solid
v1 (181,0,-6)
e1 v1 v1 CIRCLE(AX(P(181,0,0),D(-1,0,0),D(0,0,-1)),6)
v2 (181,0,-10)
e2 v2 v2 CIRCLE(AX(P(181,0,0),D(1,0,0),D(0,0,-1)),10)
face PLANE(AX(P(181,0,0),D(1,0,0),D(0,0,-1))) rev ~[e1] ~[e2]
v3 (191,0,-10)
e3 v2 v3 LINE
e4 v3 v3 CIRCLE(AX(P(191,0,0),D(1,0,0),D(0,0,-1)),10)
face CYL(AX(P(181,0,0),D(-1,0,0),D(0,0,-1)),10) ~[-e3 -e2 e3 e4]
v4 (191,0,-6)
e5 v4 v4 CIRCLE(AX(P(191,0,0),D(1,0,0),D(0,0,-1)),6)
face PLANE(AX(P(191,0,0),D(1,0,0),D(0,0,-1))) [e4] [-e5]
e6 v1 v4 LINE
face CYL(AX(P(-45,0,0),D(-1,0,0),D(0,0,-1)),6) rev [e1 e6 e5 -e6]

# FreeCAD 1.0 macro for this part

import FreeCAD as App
import Part
import Sketcher
Q = App.Units.Quantity

doc = App.newDocument("Part")
params = doc.addObject("Spreadsheet::Sheet", "Params")
for row, (alias, value) in enumerate([
    ("sketch1_diameter", "12 mm"),
    ("pad1_length", "236 mm"),
    ("sketch2_diameter", "20 mm"),
    ("pad2_length", "10 mm"),
], start=1):
    params.set(f"A{row}", alias)
    params.set(f"B{row}", "=" + value)
    params.setAlias(f"B{row}", alias)

body = doc.addObject("PartDesign::Body", "Body")

# Sketch on XY plane
sketch1 = body.newObject("Sketcher::SketchObject", "Sketch")
sketch1.AttachmentSupport = (doc.getObject("XY_Plane"), [""])
sketch1.MapMode = "FlatFace"
sketch1.addGeometry(Part.Circle(App.Vector(0, 0, 0), App.Vector(0, 0, 1), 6), False)
sketch1.addConstraint([
    Sketcher.Constraint("Coincident", 0, 3, -1, 1),
    Sketcher.Constraint("Diameter", 0, Q("12 mm")),
])
sketch1.setExpression("Constraints[1]", "Params.sketch1_diameter")
pad1 = body.newObject("PartDesign::Pad", "Pad")
pad1.Profile = sketch1
pad1.setExpression("Length", "Params.pad1_length")
body2 = doc.addObject("PartDesign::Body", "Body001")
doc.recompute()

body.Placement = App.Placement(App.Vector(0, 0, 0), App.Rotation(App.Vector(0, 1, 0), 90))
boolean = body2.newObject("PartDesign::Boolean", "Boolean")
boolean.Type = "Fuse"
boolean.addObjects([body])
body3 = doc.addObject("PartDesign::Body", "Body002")
doc.recompute()

body2.Placement = App.Placement(App.Vector(-45, 0, 0), App.Rotation(App.Vector(0, 0, 1), 0))
boolean2 = body3.newObject("PartDesign::Boolean", "Boolean001")
boolean2.Type = "Fuse"
boolean2.addObjects([body2])
body4 = doc.addObject("PartDesign::Body", "Body003")

# Sketch on XY plane
sketch2 = body4.newObject("Sketcher::SketchObject", "Sketch001")
sketch2.AttachmentSupport = (doc.getObject("XY_Plane003"), [""])
sketch2.MapMode = "FlatFace"
sketch2.addGeometry(Part.Circle(App.Vector(0, 0, 0), App.Vector(0, 0, 1), 10), False)
sketch2.addConstraint([
    Sketcher.Constraint("Coincident", 0, 3, -1, 1),
    Sketcher.Constraint("Diameter", 0, Q("20 mm")),
])
sketch2.setExpression("Constraints[1]", "Params.sketch2_diameter")
pad2 = body4.newObject("PartDesign::Pad", "Pad001")
pad2.Profile = sketch2
pad2.setExpression("Length", "Params.pad2_length")
body5 = doc.addObject("PartDesign::Body", "Body004")
doc.recompute()

body4.Placement = App.Placement(App.Vector(0, 0, 0), App.Rotation(App.Vector(0, 1, 0), 90))
boolean3 = body5.newObject("PartDesign::Boolean", "Boolean002")
boolean3.Type = "Fuse"
boolean3.addObjects([body4])
body6 = doc.addObject("PartDesign::Body", "Body005")
doc.recompute()

body5.Placement = App.Placement(App.Vector(181, 0, 0), App.Rotation(App.Vector(0, 0, 1), 0))
boolean4 = body6.newObject("PartDesign::Boolean", "Boolean003")
boolean4.Type = "Fuse"
boolean4.addObjects([body5])
doc.recompute()

boolean5 = body6.newObject("PartDesign::Boolean", "Boolean004")
boolean5.Type = "Cut"
boolean5.addObjects([body3])

doc.recompute()
